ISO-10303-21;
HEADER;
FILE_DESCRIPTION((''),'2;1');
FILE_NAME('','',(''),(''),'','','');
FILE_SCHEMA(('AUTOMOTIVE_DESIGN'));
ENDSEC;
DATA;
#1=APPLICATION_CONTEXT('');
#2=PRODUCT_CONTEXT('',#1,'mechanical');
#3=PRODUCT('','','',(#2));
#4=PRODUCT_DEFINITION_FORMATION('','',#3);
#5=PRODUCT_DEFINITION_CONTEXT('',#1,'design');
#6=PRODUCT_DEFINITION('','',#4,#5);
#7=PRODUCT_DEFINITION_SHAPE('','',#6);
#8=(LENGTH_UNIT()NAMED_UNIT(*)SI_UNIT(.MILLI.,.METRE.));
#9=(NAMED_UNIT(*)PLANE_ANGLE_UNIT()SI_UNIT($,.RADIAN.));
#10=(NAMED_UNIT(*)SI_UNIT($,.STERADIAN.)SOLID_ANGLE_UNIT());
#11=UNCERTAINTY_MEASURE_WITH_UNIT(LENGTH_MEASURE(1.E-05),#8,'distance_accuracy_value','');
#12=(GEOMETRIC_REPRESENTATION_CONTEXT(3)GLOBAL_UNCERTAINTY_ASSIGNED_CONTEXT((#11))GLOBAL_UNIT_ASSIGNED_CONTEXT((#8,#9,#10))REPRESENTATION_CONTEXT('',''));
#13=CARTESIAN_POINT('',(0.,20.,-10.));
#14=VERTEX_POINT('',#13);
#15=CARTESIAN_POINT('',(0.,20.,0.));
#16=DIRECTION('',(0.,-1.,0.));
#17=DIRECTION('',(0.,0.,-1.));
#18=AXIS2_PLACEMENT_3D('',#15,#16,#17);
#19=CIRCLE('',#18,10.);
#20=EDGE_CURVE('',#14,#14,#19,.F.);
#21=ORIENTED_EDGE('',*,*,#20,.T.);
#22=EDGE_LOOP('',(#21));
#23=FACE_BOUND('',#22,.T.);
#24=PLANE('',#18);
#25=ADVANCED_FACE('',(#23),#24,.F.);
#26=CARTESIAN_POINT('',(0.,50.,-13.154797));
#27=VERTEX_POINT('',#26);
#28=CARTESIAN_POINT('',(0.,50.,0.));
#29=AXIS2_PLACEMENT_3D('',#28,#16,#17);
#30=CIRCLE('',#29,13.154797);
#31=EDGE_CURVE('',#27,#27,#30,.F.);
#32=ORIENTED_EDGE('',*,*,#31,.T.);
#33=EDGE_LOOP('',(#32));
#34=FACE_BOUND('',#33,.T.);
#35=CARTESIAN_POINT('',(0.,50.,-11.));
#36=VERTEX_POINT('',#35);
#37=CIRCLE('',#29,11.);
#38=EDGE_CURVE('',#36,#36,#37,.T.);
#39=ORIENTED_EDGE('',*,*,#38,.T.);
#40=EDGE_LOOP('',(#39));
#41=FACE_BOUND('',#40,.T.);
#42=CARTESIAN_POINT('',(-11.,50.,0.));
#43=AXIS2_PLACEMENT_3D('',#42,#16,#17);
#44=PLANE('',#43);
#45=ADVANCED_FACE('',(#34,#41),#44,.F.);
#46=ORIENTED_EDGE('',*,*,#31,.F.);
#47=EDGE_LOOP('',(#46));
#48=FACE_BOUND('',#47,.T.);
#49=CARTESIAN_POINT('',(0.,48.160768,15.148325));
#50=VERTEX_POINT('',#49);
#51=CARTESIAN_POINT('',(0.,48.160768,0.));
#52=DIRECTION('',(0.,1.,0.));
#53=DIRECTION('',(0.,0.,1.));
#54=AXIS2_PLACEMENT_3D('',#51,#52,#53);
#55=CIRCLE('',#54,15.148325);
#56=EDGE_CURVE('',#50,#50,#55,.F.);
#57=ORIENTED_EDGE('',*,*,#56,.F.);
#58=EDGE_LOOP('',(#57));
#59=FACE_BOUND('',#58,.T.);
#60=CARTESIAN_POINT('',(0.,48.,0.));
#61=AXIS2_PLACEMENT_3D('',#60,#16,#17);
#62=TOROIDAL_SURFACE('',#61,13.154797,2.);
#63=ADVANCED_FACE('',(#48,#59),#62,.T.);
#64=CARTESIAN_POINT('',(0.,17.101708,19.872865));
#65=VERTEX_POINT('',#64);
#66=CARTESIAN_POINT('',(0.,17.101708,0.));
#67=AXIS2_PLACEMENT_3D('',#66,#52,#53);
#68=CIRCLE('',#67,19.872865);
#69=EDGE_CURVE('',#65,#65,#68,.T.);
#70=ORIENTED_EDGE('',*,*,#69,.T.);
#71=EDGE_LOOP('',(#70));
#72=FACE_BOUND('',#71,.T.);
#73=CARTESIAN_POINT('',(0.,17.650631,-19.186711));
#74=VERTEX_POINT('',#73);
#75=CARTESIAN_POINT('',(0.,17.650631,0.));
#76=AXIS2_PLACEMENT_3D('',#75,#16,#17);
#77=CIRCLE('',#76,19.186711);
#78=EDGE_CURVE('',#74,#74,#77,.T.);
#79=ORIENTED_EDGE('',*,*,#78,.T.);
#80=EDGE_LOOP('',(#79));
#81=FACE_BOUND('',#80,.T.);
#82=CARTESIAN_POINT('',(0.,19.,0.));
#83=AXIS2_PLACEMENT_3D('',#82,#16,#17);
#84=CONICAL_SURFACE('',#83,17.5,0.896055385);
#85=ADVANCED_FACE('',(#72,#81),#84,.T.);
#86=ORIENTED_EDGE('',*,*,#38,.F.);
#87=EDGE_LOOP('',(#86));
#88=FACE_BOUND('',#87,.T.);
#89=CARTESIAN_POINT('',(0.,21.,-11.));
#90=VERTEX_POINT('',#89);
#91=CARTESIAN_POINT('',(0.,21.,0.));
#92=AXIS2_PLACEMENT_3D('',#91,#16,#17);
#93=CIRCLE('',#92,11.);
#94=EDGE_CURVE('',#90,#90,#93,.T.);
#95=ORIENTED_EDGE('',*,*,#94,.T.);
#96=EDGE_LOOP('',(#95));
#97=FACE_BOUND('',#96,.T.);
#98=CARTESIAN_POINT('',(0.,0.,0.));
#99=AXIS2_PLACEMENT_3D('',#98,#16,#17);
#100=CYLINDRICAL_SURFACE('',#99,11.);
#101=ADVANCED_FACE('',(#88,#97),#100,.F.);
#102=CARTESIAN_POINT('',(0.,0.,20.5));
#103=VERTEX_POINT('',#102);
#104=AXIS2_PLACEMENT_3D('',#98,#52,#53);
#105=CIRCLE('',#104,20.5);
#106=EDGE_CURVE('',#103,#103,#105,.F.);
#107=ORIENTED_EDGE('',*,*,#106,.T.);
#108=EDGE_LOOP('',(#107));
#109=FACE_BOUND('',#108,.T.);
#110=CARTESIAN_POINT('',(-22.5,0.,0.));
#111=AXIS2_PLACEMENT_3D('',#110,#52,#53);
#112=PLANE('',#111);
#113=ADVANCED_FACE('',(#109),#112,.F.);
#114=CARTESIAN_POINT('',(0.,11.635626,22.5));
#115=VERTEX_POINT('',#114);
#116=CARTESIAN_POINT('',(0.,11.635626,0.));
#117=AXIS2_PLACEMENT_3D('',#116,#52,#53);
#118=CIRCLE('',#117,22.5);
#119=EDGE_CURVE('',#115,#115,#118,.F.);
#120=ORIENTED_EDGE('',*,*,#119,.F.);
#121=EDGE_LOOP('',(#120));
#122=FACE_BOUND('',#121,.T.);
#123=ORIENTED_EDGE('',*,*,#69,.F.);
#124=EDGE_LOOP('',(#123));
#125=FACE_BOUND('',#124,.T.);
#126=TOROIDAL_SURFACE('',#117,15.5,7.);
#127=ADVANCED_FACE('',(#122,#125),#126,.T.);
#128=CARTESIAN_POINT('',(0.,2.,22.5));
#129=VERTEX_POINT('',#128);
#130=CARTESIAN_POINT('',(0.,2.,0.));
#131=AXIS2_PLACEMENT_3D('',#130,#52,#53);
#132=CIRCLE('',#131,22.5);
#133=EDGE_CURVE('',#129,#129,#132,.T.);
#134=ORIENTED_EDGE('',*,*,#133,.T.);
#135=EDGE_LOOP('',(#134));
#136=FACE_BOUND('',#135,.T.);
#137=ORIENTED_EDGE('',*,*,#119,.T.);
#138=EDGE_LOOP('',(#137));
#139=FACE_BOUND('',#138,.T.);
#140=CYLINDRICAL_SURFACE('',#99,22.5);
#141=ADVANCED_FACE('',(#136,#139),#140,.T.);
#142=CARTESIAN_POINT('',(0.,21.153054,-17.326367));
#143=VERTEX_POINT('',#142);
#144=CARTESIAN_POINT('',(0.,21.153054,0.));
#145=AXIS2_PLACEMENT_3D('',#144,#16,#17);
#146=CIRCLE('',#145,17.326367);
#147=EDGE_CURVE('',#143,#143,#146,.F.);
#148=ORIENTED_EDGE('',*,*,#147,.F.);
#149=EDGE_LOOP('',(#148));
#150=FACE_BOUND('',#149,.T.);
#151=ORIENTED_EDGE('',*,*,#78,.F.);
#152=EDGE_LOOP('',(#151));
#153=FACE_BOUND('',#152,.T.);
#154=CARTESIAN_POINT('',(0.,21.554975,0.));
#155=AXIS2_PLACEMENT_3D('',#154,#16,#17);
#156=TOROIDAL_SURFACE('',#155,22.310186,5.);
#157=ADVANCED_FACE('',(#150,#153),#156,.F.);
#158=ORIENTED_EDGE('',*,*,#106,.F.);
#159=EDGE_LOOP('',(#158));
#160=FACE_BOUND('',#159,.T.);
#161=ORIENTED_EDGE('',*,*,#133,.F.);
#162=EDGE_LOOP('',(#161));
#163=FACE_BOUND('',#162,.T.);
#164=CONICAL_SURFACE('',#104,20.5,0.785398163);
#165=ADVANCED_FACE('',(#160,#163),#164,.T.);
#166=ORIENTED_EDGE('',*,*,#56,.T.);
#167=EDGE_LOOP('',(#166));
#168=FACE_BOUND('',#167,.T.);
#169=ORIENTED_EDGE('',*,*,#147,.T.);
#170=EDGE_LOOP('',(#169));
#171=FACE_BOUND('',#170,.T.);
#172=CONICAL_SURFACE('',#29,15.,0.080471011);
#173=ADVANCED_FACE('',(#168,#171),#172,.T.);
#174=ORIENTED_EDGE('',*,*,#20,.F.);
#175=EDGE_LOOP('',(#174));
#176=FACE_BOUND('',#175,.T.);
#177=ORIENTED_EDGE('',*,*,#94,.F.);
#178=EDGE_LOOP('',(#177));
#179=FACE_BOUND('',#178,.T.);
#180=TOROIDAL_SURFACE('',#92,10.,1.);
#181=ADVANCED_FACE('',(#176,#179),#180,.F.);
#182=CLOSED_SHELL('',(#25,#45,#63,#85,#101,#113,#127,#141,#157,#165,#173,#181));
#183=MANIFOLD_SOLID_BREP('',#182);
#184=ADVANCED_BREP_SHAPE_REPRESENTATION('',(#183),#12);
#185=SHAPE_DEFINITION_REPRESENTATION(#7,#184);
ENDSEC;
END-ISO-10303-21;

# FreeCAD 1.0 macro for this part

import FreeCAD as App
import Part
import Sketcher
from FreeCAD import Vector


def edges_at(feature, points):
    """Names of the edges that pass closest to the given points."""
    edges = feature.Shape.Edges
    near = lambda p: min(range(len(edges)), key=lambda i: edges[i].distToShape(Part.Vertex(*p))[0])
    return sorted({f"Edge{near(p) + 1}" for p in points})


def add_polygon(sketch, points):
    """Adds a closed chain of lines whose ends are joined by coincident constraints."""
    first, n = sketch.GeometryCount, len(points)
    for a, b in zip(points, points[1:] + points[:1]):
        sketch.addGeometry(Part.LineSegment(App.Vector(*a, 0), App.Vector(*b, 0)), False)
    for i in range(n):
        sketch.addConstraint(Sketcher.Constraint("Coincident", first + i, 2, first + (i + 1) % n, 1))

doc = App.newDocument("Part")
params = doc.addObject("Spreadsheet::Sheet", "Params")
for row, (alias, value) in enumerate([
    ("sketch1_width", "11 mm"),
    ("sketch1_width2", "4 mm"),
    ("sketch1_height", "30 mm"),
    ("sketch1_height2", "15 mm"),
    ("sketch1_height3", "20 mm"),
    ("revolution_angle", "360 deg"),
    ("fillet_radius", "2 mm"),
    ("fillet2_radius", "5 mm"),
    ("fillet3_radius", "7 mm"),
    ("chamfer_size", "2 mm"),
    ("fillet4_radius", "1 mm"),
], start=1):
    params.set(f"A{row}", alias)
    params.set(f"B{row}", "=" + value)
    params.setAlias(f"B{row}", alias)

body = doc.addObject("PartDesign::Body", "Body")

sketch1 = body.newObject("Sketcher::SketchObject", "Sketch")
sketch1.AttachmentSupport = (doc.getObject("XY_Plane"), [""])
sketch1.MapMode = "FlatFace"
add_polygon(sketch1, [(0, 20), (-11, 20), (-11, 50), (-15, 50), (-17.5, 19), (-22.5, 15), (-22.5, 0), (0, 0)])
sketch1.addConstraint(Sketcher.Constraint("Horizontal", 0))
sketch1.addConstraint(Sketcher.Constraint("Vertical", 1))
sketch1.addConstraint(Sketcher.Constraint("Horizontal", 2))
sketch1.addConstraint(Sketcher.Constraint("Vertical", 5))
sketch1.addConstraint(Sketcher.Constraint("Horizontal", 6))
sketch1.addConstraint(Sketcher.Constraint("Vertical", 7))
sketch1.addConstraint(Sketcher.Constraint("Coincident", 6, 2, -1, 1))
sketch1.addConstraint(Sketcher.Constraint("DistanceX", 0, 2, 0, 1, 11.0))
sketch1.addConstraint(Sketcher.Constraint("DistanceX", 2, 2, 2, 1, 4.0))
sketch1.addConstraint(Sketcher.Constraint("DistanceY", 1, 1, 1, 2, 30.0))
sketch1.addConstraint(Sketcher.Constraint("DistanceY", 5, 2, 5, 1, 15.0))
sketch1.addConstraint(Sketcher.Constraint("DistanceY", 7, 1, 7, 2, 20.0))
sketch1.addConstraint(Sketcher.Constraint("DistanceX", 6, 1, 6, 2, 22.5))
sketch1.addConstraint(Sketcher.Constraint("DistanceY", -1, 1, 3, 2, 19.0))
sketch1.addConstraint(Sketcher.Constraint("DistanceX", 4, 2, 3, 2, 5.0))
sketch1.setExpression("Constraints[15]", "Params.sketch1_width")
sketch1.setExpression("Constraints[16]", "Params.sketch1_width2")
sketch1.setExpression("Constraints[17]", "Params.sketch1_height")
sketch1.setExpression("Constraints[18]", "Params.sketch1_height2")
sketch1.setExpression("Constraints[19]", "Params.sketch1_height3")
revolution = body.newObject("PartDesign::Revolution", "Revolution")
revolution.Profile = sketch1
revolution.ReferenceAxis = (sketch1, ["V_Axis"])
revolution.setExpression("Angle", "Params.revolution_angle")
doc.recompute()

fillet = body.newObject("PartDesign::Fillet", "Fillet")
fillet.Base = (revolution, edges_at(revolution, [(0, 50, 15)]))
fillet.setExpression("Radius", "Params.fillet_radius")
doc.recompute()

fillet2 = body.newObject("PartDesign::Fillet", "Fillet001")
fillet2.Base = (fillet, edges_at(fillet, [(0, 19, 17.5)]))
fillet2.setExpression("Radius", "Params.fillet2_radius")
doc.recompute()

fillet3 = body.newObject("PartDesign::Fillet", "Fillet002")
fillet3.Base = (fillet2, edges_at(fillet2, [(0, 15, 22.5)]))
fillet3.setExpression("Radius", "Params.fillet3_radius")
doc.recompute()

chamfer = body.newObject("PartDesign::Chamfer", "Chamfer")
chamfer.Base = (fillet3, edges_at(fillet3, [(0, 0, 22.5)]))
chamfer.setExpression("Size", "Params.chamfer_size")
doc.recompute()

fillet4 = body.newObject("PartDesign::Fillet", "Fillet003")
fillet4.Base = (chamfer, edges_at(chamfer, [(0, 20, 11)]))
fillet4.setExpression("Radius", "Params.fillet4_radius")

doc.recompute()
